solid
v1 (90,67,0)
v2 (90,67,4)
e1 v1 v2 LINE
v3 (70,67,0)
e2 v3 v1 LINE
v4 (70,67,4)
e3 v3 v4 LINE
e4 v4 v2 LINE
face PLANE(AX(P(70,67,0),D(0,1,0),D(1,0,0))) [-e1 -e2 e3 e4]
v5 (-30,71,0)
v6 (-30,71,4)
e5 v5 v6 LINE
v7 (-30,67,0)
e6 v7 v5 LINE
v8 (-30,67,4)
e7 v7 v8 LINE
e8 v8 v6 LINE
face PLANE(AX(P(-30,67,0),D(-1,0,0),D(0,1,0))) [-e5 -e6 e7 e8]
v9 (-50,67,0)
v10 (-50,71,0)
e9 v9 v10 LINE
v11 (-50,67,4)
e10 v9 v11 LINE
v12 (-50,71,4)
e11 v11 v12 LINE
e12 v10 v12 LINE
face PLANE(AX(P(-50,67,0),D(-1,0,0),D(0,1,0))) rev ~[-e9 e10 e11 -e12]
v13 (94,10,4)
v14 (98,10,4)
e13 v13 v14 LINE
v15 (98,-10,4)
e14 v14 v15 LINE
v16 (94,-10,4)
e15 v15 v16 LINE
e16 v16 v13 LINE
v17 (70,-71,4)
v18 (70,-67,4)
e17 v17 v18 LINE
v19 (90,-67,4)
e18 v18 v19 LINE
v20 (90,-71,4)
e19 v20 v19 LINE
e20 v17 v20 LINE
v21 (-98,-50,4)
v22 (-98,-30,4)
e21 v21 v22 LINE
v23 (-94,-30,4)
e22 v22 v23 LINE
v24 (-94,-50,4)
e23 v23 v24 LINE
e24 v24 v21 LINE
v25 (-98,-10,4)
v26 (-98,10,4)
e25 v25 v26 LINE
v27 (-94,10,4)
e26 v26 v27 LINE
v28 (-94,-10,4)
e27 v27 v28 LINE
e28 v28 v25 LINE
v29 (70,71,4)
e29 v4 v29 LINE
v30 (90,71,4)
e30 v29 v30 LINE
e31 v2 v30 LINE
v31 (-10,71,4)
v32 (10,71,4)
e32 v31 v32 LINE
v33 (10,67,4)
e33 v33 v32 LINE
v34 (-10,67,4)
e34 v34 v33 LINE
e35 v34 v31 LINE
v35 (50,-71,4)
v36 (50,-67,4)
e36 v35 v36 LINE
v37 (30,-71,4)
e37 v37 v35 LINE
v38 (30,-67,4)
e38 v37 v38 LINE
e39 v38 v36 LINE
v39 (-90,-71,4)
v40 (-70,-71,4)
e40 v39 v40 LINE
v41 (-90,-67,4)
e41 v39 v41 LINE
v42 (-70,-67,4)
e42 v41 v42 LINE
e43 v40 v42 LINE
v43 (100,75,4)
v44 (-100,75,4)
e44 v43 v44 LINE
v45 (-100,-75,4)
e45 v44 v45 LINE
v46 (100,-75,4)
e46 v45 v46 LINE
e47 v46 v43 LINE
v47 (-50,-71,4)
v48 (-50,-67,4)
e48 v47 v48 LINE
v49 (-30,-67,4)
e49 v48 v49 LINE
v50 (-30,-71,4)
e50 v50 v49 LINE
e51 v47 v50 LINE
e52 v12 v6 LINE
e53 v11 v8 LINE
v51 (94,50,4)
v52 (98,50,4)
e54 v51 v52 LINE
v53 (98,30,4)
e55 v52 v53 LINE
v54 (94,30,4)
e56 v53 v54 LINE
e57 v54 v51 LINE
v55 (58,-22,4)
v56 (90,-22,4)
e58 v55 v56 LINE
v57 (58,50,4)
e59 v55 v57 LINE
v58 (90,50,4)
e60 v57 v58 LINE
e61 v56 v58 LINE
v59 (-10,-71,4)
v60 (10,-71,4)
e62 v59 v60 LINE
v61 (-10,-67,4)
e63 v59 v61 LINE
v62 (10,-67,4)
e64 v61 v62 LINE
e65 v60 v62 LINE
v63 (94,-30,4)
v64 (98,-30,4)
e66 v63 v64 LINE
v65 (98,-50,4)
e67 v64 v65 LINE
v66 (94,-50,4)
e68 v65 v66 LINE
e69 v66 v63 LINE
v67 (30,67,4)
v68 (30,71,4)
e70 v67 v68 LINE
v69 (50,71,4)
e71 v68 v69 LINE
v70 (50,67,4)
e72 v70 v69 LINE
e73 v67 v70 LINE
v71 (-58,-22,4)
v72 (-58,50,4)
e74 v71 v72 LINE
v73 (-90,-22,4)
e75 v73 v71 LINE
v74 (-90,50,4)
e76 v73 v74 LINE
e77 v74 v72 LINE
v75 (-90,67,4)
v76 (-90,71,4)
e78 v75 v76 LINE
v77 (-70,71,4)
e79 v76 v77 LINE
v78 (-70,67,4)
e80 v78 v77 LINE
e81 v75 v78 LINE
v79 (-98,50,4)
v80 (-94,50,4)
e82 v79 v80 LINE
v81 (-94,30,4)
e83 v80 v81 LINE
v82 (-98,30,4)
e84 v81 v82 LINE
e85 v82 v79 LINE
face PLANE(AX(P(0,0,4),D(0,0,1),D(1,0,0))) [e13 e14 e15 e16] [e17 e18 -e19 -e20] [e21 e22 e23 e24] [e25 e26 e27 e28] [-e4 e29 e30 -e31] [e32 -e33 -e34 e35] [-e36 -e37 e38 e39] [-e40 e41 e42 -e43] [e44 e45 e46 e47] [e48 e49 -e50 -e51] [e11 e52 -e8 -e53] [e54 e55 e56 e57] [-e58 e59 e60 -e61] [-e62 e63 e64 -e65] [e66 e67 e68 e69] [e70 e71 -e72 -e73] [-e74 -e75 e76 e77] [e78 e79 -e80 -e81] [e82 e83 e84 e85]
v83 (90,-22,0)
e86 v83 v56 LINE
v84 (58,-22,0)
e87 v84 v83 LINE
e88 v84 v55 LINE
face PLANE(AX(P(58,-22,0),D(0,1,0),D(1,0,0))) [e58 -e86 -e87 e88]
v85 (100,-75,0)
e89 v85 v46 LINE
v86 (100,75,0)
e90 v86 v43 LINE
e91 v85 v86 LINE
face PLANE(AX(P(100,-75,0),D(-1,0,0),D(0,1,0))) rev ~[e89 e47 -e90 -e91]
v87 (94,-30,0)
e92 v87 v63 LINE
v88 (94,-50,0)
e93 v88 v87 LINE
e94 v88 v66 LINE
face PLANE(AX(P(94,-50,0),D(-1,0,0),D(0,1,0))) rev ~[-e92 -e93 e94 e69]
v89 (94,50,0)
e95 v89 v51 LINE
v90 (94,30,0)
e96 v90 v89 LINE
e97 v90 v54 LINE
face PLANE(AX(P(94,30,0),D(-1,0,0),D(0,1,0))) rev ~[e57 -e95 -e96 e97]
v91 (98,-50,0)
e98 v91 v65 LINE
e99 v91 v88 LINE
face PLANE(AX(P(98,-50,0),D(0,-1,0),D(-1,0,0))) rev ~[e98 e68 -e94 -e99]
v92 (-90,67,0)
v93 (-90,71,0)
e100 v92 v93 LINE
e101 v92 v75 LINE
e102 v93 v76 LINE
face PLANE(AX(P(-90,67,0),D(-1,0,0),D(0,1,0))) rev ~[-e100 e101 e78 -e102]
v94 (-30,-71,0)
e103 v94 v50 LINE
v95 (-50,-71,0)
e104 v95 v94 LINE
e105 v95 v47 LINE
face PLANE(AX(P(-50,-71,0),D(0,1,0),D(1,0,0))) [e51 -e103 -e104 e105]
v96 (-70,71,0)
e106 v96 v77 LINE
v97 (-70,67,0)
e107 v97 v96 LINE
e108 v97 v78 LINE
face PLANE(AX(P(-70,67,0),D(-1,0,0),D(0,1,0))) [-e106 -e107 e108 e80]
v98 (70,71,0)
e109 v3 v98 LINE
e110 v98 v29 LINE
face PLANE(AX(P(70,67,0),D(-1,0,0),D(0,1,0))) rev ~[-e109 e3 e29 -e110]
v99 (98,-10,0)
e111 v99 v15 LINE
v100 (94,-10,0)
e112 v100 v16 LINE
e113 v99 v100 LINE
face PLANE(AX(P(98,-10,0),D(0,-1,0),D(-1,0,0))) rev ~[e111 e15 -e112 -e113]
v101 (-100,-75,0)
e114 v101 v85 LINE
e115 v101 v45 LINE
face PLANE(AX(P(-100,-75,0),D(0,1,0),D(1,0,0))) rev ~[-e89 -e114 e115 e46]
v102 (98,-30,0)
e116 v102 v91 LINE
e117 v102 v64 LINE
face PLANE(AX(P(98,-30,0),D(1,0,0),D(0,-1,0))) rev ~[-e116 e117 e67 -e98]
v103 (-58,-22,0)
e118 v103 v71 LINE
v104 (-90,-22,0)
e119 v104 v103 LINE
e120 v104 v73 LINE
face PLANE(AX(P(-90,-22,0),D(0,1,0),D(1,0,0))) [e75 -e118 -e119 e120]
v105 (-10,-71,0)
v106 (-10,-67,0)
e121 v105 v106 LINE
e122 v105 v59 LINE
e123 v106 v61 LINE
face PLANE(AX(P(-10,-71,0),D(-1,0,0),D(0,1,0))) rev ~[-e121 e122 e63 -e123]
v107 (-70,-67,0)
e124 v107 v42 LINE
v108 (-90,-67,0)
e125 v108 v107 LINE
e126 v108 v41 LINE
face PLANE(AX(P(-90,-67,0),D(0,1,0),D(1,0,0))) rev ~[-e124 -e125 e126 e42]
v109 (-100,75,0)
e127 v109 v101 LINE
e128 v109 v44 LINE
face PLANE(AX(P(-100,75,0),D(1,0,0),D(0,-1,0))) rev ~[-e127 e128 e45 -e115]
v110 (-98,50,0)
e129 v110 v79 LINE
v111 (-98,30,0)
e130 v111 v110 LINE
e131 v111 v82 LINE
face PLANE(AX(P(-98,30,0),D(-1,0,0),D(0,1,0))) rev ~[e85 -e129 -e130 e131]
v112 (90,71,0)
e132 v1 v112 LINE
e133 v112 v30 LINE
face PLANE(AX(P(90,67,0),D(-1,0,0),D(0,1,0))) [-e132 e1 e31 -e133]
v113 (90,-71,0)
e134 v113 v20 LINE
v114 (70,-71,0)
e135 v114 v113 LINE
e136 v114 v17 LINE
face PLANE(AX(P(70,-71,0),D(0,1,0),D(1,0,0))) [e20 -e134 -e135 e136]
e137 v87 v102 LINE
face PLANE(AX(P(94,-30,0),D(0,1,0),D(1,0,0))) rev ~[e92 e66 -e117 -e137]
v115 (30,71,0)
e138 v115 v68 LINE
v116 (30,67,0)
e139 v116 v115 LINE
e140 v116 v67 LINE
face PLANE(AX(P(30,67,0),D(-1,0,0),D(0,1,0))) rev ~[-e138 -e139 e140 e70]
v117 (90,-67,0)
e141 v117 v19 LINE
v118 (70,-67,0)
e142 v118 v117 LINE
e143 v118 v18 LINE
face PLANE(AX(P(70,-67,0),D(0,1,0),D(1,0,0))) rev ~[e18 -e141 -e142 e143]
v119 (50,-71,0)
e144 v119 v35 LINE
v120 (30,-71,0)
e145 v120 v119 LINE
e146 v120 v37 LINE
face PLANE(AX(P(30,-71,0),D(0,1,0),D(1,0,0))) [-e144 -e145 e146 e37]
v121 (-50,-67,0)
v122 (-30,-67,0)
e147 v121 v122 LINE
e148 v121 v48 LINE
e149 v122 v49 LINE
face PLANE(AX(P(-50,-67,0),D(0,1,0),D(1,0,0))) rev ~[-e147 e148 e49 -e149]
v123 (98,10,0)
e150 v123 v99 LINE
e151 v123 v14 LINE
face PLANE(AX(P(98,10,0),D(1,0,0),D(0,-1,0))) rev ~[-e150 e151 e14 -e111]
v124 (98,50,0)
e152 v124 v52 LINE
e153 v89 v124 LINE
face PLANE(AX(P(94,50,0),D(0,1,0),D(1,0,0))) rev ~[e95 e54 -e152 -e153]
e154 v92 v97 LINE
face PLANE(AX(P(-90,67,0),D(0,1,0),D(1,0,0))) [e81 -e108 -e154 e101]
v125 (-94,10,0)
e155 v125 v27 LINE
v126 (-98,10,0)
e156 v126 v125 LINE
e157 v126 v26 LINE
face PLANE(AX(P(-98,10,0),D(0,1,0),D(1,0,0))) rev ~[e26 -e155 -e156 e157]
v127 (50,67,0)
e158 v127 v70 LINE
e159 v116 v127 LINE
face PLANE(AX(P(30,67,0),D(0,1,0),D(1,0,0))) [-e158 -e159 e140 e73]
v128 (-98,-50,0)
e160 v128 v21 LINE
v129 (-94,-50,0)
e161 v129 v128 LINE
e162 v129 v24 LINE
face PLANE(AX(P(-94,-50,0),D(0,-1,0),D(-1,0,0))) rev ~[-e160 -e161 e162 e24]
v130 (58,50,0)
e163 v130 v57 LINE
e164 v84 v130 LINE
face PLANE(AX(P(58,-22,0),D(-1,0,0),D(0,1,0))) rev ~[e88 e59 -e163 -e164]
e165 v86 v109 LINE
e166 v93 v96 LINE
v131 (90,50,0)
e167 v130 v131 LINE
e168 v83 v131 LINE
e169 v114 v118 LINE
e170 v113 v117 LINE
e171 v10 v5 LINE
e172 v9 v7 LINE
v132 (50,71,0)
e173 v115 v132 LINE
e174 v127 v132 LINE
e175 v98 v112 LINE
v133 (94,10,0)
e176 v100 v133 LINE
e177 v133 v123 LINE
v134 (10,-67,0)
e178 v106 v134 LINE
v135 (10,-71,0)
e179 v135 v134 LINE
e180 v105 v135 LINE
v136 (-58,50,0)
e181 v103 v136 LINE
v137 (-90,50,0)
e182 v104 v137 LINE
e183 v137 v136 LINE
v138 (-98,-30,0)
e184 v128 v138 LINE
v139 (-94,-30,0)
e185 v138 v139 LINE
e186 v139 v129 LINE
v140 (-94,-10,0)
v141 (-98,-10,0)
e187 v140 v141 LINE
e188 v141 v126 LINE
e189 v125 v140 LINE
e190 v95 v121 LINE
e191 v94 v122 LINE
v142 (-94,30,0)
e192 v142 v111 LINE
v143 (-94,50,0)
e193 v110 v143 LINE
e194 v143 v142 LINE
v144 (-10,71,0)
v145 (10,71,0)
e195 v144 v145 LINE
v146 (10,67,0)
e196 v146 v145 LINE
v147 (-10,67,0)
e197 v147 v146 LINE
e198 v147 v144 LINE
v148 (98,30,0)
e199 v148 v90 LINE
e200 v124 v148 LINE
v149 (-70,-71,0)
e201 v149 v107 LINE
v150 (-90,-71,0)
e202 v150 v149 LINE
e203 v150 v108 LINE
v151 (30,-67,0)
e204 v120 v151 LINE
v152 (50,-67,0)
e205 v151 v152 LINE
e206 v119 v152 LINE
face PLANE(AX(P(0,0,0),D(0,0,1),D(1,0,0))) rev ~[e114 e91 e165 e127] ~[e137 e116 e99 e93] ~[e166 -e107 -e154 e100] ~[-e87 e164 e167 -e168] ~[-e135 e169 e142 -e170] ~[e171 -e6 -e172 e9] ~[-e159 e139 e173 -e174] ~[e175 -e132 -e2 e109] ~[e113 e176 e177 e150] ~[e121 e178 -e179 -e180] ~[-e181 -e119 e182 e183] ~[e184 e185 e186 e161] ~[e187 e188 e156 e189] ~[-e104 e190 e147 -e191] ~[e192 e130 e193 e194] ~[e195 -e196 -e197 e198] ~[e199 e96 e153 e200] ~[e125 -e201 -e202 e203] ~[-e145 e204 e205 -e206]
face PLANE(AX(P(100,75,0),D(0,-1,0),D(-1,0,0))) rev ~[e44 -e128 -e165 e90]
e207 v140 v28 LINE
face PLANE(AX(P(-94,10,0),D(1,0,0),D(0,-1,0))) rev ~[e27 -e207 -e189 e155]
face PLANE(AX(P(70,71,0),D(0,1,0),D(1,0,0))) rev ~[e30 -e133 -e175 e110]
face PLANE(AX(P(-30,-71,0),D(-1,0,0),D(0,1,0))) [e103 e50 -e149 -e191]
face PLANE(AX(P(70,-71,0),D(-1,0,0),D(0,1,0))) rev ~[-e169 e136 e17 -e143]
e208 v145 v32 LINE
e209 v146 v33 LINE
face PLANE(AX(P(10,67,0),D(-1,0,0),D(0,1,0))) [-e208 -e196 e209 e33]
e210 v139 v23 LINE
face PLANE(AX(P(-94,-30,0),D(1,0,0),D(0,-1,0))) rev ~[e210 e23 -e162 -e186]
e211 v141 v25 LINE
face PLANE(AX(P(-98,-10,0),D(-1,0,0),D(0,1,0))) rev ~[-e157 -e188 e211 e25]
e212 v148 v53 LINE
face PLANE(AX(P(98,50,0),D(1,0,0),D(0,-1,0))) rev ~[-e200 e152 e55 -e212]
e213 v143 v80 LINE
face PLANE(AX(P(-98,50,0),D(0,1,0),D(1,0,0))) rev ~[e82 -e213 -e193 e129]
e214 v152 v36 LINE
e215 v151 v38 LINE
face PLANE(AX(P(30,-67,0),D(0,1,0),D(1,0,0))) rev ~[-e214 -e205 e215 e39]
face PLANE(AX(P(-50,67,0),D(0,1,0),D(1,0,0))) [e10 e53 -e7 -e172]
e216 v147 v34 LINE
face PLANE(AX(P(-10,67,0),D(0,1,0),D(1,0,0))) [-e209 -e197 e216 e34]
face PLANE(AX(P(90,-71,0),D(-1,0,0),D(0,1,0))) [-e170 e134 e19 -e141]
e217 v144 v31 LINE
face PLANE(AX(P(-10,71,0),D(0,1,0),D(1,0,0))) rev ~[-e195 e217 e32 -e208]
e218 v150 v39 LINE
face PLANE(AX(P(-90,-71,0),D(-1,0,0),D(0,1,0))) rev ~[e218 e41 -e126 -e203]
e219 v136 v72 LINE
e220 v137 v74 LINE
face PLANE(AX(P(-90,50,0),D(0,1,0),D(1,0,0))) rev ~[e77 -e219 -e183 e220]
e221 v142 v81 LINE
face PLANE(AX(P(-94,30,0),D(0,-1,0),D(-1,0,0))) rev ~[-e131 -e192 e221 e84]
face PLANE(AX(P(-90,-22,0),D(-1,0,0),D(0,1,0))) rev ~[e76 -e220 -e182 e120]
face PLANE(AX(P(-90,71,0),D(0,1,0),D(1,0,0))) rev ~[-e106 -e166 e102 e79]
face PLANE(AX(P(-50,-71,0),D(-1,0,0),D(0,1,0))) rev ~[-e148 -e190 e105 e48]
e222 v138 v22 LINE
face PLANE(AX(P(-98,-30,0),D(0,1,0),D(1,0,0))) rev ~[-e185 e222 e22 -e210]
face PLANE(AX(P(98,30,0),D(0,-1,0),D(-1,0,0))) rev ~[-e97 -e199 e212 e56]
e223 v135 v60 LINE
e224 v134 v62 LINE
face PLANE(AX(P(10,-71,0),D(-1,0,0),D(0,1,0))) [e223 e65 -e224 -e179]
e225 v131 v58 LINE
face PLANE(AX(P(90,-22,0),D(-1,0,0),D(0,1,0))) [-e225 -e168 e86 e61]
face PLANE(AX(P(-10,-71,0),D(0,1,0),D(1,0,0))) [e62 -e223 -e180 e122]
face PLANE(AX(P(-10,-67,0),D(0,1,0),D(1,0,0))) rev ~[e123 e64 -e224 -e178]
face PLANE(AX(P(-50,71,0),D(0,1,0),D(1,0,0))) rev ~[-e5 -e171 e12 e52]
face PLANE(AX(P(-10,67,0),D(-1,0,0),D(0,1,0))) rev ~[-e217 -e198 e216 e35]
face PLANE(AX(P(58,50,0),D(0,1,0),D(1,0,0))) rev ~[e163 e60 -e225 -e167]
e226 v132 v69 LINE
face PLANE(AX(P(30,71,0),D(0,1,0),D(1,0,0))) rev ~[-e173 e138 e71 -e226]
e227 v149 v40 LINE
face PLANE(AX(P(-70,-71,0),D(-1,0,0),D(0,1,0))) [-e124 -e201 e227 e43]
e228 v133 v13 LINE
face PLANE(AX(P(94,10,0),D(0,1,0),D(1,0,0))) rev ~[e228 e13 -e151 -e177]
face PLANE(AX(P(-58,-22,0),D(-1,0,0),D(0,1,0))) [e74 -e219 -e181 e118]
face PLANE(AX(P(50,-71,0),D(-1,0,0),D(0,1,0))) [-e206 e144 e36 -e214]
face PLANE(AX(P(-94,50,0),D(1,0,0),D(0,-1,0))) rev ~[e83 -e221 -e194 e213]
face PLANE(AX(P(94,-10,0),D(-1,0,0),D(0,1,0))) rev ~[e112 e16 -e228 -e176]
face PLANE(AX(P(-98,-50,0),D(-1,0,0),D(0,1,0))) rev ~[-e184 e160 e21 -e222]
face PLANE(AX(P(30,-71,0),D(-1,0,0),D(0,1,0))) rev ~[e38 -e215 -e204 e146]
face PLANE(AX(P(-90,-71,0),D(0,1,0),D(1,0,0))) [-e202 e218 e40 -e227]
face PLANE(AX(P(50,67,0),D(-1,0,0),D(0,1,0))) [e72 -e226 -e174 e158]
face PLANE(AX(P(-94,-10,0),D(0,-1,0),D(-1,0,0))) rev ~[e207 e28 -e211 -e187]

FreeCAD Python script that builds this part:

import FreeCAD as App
import Part
import Sketcher

V = App.Vector


def add_polygon(sketch, points):
    """Adds a closed chain of lines whose ends are joined by coincident constraints."""
    first, n = sketch.GeometryCount, len(points)
    for a, b in zip(points, points[1:] + points[:1]):
        sketch.addGeometry(Part.LineSegment(App.Vector(*a, 0), App.Vector(*b, 0)), False)
    for i in range(n):
        sketch.addConstraint(Sketcher.Constraint("Coincident", first + i, 2, first + (i + 1) % n, 1))

doc = App.newDocument("Part")
body = doc.addObject("PartDesign::Body", "Body")

# Sketch on XY plane
sketch1 = body.newObject("Sketcher::SketchObject", "Sketch")
sketch1.AttachmentSupport = (doc.getObject("XY_Plane"), [""])
sketch1.MapMode = "FlatFace"
add_polygon(sketch1, [(100, 75), (-100, 75), (-100, -75), (100, -75)])  # lines 0-3
add_polygon(sketch1, [(-70, -71), (-90, -71), (-90, -67), (-70, -67)])  # lines 4-7
add_polygon(sketch1, [(-98, -50), (-98, -30), (-94, -30), (-94, -50)])  # lines 8-11
add_polygon(sketch1, [(-30, -71), (-50, -71), (-50, -67), (-30, -67)])  # lines 12-15
add_polygon(sketch1, [(10, -71), (-10, -71), (-10, -67), (10, -67)])  # lines 16-19
add_polygon(sketch1, [(50, -71), (30, -71), (30, -67), (50, -67)])  # lines 20-23
add_polygon(sketch1, [(90, -71), (70, -71), (70, -67), (90, -67)])  # lines 24-27
add_polygon(sketch1, [(94, -50), (94, -30), (98, -30), (98, -50)])  # lines 28-31
add_polygon(sketch1, [(-94, -10), (-98, -10), (-98, 10), (-94, 10)])  # lines 32-35
add_polygon(sketch1, [(-58, -22), (-90, -22), (-90, 50), (-58, 50)])  # lines 36-39
add_polygon(sketch1, [(-94, 30), (-98, 30), (-98, 50), (-94, 50)])  # lines 40-43
add_polygon(sketch1, [(-70, 67), (-90, 67), (-90, 71), (-70, 71)])  # lines 44-47
add_polygon(sketch1, [(-30, 67), (-50, 67), (-50, 71), (-30, 71)])  # lines 48-51
add_polygon(sketch1, [(10, 67), (-10, 67), (-10, 71), (10, 71)])  # lines 52-55
add_polygon(sketch1, [(98, -10), (94, -10), (94, 10), (98, 10)])  # lines 56-59
add_polygon(sketch1, [(90, -22), (58, -22), (58, 50), (90, 50)])  # lines 60-63
add_polygon(sketch1, [(50, 67), (30, 67), (30, 71), (50, 71)])  # lines 64-67
add_polygon(sketch1, [(98, 50), (98, 30), (94, 30), (94, 50)])  # lines 68-71
add_polygon(sketch1, [(90, 67), (70, 67), (70, 71), (90, 71)])  # lines 72-75
sketch1.addConstraint([
    Sketcher.Constraint("Horizontal", 0),
    Sketcher.Constraint("Vertical", 1),
    Sketcher.Constraint("Horizontal", 2),
    Sketcher.Constraint("Vertical", 3),
    Sketcher.Constraint("Horizontal", 4),
    Sketcher.Constraint("Vertical", 5),
    Sketcher.Constraint("Horizontal", 6),
    Sketcher.Constraint("Vertical", 7),
    Sketcher.Constraint("Vertical", 8),
    Sketcher.Constraint("Horizontal", 9),
    Sketcher.Constraint("Vertical", 10),
    Sketcher.Constraint("Horizontal", 11),
    Sketcher.Constraint("Horizontal", 12),
    Sketcher.Constraint("Vertical", 13),
    Sketcher.Constraint("Horizontal", 14),
    Sketcher.Constraint("Vertical", 15),
    Sketcher.Constraint("Horizontal", 16),
    Sketcher.Constraint("Vertical", 17),
    Sketcher.Constraint("Horizontal", 18),
    Sketcher.Constraint("Vertical", 19),
    Sketcher.Constraint("Horizontal", 20),
    Sketcher.Constraint("Vertical", 21),
    Sketcher.Constraint("Horizontal", 22),
    Sketcher.Constraint("Vertical", 23),
    Sketcher.Constraint("Horizontal", 24),
    Sketcher.Constraint("Vertical", 25),
    Sketcher.Constraint("Horizontal", 26),
    Sketcher.Constraint("Vertical", 27),
    Sketcher.Constraint("Vertical", 28),
    Sketcher.Constraint("Horizontal", 29),
    Sketcher.Constraint("Vertical", 30),
    Sketcher.Constraint("Horizontal", 31),
    Sketcher.Constraint("Horizontal", 32),
    Sketcher.Constraint("Vertical", 33),
    Sketcher.Constraint("Horizontal", 34),
    Sketcher.Constraint("Vertical", 35),
    Sketcher.Constraint("Horizontal", 36),
    Sketcher.Constraint("Vertical", 37),
    Sketcher.Constraint("Horizontal", 38),
    Sketcher.Constraint("Vertical", 39),
    Sketcher.Constraint("Horizontal", 40),
    Sketcher.Constraint("Vertical", 41),
    Sketcher.Constraint("Horizontal", 42),
    Sketcher.Constraint("Vertical", 43),
    Sketcher.Constraint("Horizontal", 44),
    Sketcher.Constraint("Vertical", 45),
    Sketcher.Constraint("Horizontal", 46),
    Sketcher.Constraint("Vertical", 47),
    Sketcher.Constraint("Horizontal", 48),
    Sketcher.Constraint("Vertical", 49),
    Sketcher.Constraint("Horizontal", 50),
    Sketcher.Constraint("Vertical", 51),
    Sketcher.Constraint("Horizontal", 52),
    Sketcher.Constraint("Vertical", 53),
    Sketcher.Constraint("Horizontal", 54),
    Sketcher.Constraint("Vertical", 55),
    Sketcher.Constraint("Horizontal", 56),
    Sketcher.Constraint("Vertical", 57),
    Sketcher.Constraint("Horizontal", 58),
    Sketcher.Constraint("Vertical", 59),
    Sketcher.Constraint("Horizontal", 60),
    Sketcher.Constraint("Vertical", 61),
    Sketcher.Constraint("Horizontal", 62),
    Sketcher.Constraint("Vertical", 63),
    Sketcher.Constraint("Horizontal", 64),
    Sketcher.Constraint("Vertical", 65),
    Sketcher.Constraint("Horizontal", 66),
    Sketcher.Constraint("Vertical", 67),
    Sketcher.Constraint("Vertical", 68),
    Sketcher.Constraint("Horizontal", 69),
    Sketcher.Constraint("Vertical", 70),
    Sketcher.Constraint("Horizontal", 71),
    Sketcher.Constraint("Horizontal", 72),
    Sketcher.Constraint("Vertical", 73),
    Sketcher.Constraint("Horizontal", 74),
    Sketcher.Constraint("Vertical", 75),
    Sketcher.Constraint("Symmetric", 0, 2, 2, 2, -1, 1),
    Sketcher.Constraint("Symmetric", 29, 2, 40, 2, -1, 1),
    Sketcher.Constraint("Symmetric", 31, 2, 42, 2, -1, 1),
    Sketcher.Constraint("Symmetric", 26, 2, 44, 2, -1, 1),
    Sketcher.Constraint("Symmetric", 24, 2, 46, 2, -1, 1),
    Sketcher.Constraint("Symmetric", 22, 2, 48, 2, -1, 1),
    Sketcher.Constraint("Symmetric", 20, 2, 50, 2, -1, 1),
    Sketcher.Constraint("Symmetric", 18, 2, 52, 2, -1, 1),
    Sketcher.Constraint("Symmetric", 16, 2, 54, 2, -1, 1),
    Sketcher.Constraint("Symmetric", 34, 2, 56, 2, -1, 1),
    Sketcher.Constraint("Symmetric", 32, 2, 58, 2, -1, 1),
    Sketcher.Constraint("Symmetric", 14, 2, 64, 2, -1, 1),
    Sketcher.Constraint("Symmetric", 12, 2, 66, 2, -1, 1),
    Sketcher.Constraint("Symmetric", 8, 2, 68, 2, -1, 1),
    Sketcher.Constraint("Symmetric", 10, 2, 70, 2, -1, 1),
    Sketcher.Constraint("Symmetric", 6, 2, 72, 2, -1, 1),
    Sketcher.Constraint("Symmetric", 4, 2, 74, 2, -1, 1),
    Sketcher.Constraint("Symmetric", 15, 2, 20, 2, -2),
    Sketcher.Constraint("Symmetric", 13, 2, 22, 2, -2),
    Sketcher.Constraint("Symmetric", 7, 2, 24, 2, -2),
    Sketcher.Constraint("Symmetric", 5, 2, 26, 2, -2),
    Sketcher.Constraint("Symmetric", 9, 2, 28, 2, -2),
    Sketcher.Constraint("Symmetric", 11, 2, 30, 2, -2),
    Sketcher.Constraint("Symmetric", 39, 2, 60, 2, -2),
    Sketcher.Constraint("Symmetric", 37, 2, 62, 2, -2),
    Sketcher.Constraint("Horizontal", 7, 2, 12, 2),
    Sketcher.Constraint("Horizontal", 6, 2, 13, 2),
    Sketcher.Constraint("Horizontal", 15, 2, 16, 2),
    Sketcher.Constraint("Horizontal", 14, 2, 17, 2),
    Sketcher.Constraint("Horizontal", 38, 2, 41, 2),
    Sketcher.Constraint("Horizontal", 35, 2, 56, 2),
    Sketcher.Constraint("Vertical", 11, 2, 32, 2),
    Sketcher.Constraint("Vertical", 10, 2, 34, 2),
    Sketcher.Constraint("Vertical", 5, 2, 36, 2),
    Sketcher.Constraint("Vertical", 17, 2, 52, 2),
    Sketcher.Constraint("Equal", 6, 12),
    Sketcher.Constraint("Equal", 14, 16),
    Sketcher.Constraint("Equal", 71, 5),
    Sketcher.Constraint("Equal", 74, 8),
    Sketcher.Constraint("Equal", 30, 33),
    Sketcher.Constraint("DistanceX", 0, 2, 0, 1, 200.0),
    Sketcher.Constraint("DistanceX", 4, 2, 4, 1, 20.0),
    Sketcher.Constraint("DistanceX", 9, 1, 9, 2, 4.0),
    Sketcher.Constraint("DistanceX", 36, 2, 36, 1, 32.0),
    Sketcher.Constraint("DistanceY", 1, 2, 1, 1, 150.0),
    Sketcher.Constraint("DistanceY", 37, 1, 37, 2, 72.0),
    Sketcher.Constraint("DistanceX", 4, 2, -1, 1, 90.0),
    Sketcher.Constraint("DistanceY", 4, 2, -1, 1, 71.0),
    Sketcher.Constraint("DistanceX", 8, 2, -1, 1, 98.0),
    Sketcher.Constraint("DistanceY", 8, 2, -1, 1, 30.0),
    Sketcher.Constraint("DistanceX", 12, 2, -1, 1, 50.0),
])
pad1 = body.newObject("PartDesign::Pad", "Pad")
pad1.Profile = sketch1
pad1.Length = 4

doc.recompute()
